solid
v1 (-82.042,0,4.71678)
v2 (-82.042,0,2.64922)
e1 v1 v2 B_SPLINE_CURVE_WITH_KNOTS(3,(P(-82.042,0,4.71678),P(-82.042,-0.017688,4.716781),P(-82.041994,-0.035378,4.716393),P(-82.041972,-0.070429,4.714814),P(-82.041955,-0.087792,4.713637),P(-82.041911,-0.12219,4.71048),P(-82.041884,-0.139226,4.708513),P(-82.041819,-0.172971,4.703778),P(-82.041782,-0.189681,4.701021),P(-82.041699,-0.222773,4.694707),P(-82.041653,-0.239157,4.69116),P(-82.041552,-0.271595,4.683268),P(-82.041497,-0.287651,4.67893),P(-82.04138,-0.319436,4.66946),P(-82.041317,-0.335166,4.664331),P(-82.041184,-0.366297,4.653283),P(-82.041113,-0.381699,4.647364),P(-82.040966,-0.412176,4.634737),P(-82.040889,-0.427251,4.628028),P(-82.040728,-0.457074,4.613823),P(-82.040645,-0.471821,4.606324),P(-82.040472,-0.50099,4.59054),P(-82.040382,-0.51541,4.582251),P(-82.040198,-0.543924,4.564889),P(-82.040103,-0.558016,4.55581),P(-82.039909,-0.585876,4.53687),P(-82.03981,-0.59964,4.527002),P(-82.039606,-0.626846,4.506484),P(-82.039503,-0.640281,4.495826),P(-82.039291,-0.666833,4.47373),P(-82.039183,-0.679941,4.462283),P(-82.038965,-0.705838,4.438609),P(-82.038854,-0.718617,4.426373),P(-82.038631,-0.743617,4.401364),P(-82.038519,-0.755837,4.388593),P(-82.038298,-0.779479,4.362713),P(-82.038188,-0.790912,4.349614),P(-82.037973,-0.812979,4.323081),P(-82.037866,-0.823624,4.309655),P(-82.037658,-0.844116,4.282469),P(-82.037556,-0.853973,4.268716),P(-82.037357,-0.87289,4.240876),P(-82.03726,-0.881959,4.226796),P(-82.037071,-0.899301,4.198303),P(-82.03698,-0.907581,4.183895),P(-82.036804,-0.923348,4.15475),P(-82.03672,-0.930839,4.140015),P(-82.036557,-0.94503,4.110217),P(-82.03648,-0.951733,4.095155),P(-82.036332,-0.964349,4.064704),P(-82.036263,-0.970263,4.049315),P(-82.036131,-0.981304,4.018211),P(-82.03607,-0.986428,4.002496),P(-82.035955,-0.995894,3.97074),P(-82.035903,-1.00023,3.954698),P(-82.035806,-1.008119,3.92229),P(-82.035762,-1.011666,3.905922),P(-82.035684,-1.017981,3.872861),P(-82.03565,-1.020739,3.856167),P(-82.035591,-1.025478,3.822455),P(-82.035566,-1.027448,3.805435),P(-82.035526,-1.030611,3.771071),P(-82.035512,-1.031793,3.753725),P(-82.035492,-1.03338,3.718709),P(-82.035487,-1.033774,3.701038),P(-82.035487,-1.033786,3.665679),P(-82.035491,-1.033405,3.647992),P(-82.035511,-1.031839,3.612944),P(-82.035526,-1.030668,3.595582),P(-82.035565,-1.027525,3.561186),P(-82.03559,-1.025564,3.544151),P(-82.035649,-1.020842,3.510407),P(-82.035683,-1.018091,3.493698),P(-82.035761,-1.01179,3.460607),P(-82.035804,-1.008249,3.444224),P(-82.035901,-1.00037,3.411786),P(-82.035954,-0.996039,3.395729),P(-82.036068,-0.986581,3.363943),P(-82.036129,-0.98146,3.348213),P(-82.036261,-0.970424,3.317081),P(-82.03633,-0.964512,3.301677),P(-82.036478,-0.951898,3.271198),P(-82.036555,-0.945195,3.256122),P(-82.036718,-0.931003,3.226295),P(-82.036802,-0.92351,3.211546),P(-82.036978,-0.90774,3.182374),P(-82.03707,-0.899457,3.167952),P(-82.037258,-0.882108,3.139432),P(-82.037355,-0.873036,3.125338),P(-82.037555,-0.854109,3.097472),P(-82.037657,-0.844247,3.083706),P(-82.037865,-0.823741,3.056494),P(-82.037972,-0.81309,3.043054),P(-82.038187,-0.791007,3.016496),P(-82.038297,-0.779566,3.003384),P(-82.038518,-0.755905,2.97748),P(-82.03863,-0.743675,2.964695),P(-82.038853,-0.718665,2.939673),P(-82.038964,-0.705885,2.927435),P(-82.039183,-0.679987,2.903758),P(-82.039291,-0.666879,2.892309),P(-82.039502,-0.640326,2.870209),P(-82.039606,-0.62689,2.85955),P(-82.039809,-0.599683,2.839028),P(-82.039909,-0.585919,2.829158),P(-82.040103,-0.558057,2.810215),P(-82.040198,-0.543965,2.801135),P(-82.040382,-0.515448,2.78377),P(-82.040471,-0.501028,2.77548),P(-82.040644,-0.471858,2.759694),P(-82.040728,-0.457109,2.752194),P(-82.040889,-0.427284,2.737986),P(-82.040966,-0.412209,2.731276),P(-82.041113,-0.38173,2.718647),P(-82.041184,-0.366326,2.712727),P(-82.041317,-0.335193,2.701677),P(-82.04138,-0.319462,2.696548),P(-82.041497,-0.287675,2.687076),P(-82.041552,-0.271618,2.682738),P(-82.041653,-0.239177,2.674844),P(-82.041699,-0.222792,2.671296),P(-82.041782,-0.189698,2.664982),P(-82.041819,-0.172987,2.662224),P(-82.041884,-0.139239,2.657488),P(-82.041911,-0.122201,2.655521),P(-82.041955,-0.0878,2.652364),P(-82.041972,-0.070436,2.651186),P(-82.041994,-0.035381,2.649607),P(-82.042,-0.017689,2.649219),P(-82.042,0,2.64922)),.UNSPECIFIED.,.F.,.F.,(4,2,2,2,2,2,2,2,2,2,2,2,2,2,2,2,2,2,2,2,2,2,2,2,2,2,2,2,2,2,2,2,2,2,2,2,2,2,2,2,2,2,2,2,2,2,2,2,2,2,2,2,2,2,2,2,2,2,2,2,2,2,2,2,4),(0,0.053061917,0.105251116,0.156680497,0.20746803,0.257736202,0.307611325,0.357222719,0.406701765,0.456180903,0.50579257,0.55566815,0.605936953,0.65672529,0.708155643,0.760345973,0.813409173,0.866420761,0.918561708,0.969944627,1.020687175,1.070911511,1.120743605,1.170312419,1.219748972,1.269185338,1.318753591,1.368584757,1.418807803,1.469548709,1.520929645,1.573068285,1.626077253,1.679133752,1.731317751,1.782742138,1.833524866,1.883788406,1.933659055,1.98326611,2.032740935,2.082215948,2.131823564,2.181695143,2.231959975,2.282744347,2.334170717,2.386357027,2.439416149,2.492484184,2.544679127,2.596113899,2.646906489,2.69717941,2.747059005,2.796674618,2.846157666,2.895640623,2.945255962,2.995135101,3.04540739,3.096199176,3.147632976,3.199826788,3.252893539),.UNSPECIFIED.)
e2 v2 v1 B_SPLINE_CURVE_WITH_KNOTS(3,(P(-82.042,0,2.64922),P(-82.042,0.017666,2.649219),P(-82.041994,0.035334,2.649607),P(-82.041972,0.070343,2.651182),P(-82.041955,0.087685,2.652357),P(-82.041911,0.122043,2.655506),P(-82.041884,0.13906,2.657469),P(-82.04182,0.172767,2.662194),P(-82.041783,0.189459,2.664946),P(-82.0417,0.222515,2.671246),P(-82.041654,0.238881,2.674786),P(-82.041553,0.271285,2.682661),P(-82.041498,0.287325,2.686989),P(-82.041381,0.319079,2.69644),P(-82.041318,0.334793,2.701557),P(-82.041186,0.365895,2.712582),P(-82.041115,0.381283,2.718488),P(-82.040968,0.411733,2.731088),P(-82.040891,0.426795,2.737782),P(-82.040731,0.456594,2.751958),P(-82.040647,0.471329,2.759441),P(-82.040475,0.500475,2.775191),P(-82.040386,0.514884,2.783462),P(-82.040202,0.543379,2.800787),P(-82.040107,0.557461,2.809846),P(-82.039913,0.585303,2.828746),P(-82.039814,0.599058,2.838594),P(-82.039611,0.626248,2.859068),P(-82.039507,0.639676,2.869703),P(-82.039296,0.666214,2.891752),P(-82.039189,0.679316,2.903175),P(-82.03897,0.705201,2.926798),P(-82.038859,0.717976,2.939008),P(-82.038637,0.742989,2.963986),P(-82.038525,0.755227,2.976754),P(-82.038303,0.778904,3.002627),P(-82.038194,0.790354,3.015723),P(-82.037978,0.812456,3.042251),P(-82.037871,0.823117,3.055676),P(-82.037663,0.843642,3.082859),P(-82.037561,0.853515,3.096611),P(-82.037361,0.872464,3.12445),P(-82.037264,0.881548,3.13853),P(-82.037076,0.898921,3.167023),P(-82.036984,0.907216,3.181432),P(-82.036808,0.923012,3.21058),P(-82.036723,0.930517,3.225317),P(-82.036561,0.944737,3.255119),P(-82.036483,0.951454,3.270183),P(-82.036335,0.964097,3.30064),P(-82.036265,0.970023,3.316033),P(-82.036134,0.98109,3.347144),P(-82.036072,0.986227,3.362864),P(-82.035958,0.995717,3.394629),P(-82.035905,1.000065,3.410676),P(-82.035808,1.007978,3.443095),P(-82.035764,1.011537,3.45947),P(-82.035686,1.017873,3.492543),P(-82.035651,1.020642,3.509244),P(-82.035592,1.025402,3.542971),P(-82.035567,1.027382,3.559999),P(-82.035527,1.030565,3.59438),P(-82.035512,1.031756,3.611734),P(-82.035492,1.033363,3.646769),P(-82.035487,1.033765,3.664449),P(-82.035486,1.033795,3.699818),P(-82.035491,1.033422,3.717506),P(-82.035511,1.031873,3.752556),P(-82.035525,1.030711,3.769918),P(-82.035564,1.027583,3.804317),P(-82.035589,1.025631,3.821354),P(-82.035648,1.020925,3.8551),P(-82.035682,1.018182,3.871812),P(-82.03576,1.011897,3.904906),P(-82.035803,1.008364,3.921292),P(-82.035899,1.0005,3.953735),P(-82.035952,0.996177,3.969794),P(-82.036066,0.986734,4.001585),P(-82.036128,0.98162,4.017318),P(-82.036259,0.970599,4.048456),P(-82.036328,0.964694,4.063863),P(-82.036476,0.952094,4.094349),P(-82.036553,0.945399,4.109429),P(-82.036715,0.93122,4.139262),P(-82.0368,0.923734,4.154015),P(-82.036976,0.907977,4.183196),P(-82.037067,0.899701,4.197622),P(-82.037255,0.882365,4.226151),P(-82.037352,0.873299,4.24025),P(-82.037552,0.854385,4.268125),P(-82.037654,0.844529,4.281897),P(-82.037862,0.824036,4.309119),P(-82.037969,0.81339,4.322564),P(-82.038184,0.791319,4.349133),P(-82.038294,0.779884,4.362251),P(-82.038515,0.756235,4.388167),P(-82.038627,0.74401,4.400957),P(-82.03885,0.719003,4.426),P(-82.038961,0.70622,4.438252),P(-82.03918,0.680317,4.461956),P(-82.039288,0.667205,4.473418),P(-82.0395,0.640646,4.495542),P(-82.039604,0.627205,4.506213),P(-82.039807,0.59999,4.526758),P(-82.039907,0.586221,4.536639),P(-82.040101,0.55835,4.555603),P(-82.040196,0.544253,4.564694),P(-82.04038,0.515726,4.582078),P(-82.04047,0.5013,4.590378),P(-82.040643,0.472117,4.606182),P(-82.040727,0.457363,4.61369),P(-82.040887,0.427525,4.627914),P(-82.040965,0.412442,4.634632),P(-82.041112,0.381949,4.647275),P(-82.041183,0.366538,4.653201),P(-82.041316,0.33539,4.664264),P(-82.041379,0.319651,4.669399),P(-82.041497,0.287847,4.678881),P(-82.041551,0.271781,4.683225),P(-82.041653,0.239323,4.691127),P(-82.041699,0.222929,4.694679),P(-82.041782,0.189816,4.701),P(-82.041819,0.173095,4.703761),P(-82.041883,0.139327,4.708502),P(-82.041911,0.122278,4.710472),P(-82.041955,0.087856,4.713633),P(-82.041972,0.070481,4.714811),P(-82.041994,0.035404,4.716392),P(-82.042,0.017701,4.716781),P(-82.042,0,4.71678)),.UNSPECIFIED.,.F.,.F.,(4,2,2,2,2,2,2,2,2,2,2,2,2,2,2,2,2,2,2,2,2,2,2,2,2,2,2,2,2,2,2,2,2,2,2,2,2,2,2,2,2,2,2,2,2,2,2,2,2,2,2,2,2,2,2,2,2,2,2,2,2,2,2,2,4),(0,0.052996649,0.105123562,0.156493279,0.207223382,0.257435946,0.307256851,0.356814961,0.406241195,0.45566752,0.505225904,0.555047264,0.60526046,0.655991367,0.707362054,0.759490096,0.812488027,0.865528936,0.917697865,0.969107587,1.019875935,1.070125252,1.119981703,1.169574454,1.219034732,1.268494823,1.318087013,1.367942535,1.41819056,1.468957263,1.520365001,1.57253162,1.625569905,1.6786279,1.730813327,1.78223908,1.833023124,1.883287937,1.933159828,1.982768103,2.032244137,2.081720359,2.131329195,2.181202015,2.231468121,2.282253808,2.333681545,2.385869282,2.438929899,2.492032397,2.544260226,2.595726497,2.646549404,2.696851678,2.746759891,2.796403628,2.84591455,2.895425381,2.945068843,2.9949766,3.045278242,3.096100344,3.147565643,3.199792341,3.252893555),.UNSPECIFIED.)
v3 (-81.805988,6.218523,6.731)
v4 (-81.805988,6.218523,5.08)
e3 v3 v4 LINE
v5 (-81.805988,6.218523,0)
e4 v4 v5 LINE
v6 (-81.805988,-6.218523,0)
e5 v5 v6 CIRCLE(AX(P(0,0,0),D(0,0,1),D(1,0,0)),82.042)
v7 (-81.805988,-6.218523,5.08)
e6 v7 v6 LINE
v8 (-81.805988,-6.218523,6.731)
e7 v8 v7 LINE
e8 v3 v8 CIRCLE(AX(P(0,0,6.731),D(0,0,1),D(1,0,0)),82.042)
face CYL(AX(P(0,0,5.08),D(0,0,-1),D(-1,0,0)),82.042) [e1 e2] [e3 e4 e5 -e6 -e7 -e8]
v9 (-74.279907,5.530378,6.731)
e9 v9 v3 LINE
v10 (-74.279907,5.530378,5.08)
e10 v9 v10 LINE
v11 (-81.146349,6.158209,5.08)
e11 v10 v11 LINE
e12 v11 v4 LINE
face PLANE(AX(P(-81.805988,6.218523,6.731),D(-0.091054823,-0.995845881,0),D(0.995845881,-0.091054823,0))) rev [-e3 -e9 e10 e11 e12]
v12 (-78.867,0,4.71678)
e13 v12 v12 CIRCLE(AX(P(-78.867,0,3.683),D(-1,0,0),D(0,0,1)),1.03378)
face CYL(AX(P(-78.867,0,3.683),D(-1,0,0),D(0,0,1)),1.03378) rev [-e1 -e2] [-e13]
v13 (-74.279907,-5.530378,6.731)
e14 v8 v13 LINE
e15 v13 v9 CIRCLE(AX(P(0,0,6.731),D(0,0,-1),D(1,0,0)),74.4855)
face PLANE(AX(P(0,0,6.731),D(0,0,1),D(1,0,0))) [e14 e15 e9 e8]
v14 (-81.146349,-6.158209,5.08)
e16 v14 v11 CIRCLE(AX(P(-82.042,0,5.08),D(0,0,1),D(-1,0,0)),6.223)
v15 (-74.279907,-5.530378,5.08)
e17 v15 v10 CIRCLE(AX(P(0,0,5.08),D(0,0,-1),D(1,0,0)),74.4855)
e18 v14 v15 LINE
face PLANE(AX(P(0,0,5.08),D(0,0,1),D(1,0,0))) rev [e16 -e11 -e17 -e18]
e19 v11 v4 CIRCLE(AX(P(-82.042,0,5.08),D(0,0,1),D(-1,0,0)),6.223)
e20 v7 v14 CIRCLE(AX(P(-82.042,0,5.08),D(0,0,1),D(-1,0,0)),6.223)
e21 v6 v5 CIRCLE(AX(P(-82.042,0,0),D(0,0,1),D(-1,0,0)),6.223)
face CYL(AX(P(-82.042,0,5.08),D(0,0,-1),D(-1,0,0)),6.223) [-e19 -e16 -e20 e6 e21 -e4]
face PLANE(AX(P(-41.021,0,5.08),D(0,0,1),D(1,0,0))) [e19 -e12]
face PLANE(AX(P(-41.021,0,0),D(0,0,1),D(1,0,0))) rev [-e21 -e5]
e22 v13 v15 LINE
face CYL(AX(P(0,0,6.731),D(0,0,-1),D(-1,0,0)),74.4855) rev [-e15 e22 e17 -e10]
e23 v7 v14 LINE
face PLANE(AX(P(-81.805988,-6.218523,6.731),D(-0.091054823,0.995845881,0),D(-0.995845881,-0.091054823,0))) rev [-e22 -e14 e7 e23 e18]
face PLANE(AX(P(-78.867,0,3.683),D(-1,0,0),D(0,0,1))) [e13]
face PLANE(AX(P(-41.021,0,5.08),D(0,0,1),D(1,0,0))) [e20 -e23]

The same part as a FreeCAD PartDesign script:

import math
import FreeCAD as App
import Part
import Sketcher

V = App.Vector
Q = App.Units.Quantity

doc = App.newDocument("Part")
body = doc.addObject("PartDesign::Body", "Body")

# Sketch on XY plane
sketch1 = body.newObject("Sketcher::SketchObject", "Sketch")
sketch1.AttachmentSupport = (doc.getObject("XY_Plane"), [""])
sketch1.MapMode = "FlatFace"
sketch1.addGeometry([
    Part.ArcOfCircle(Part.Circle(V(-82.042, 0, 0), V(0, 0, 1), 6.223), math.radians(-87.826496), math.radians(87.826496)),
    Part.ArcOfCircle(Part.Circle(V(0, 0, 0), V(0, 0, 1), 82.042), math.radians(175.652993), math.radians(184.347007)),
], False)
sketch1.addConstraint([
    Sketcher.Constraint("Coincident", 0, 1, 1, 2),
    Sketcher.Constraint("Coincident", 1, 1, 0, 2),
    Sketcher.Constraint("Coincident", 1, 3, -1, 1),
    Sketcher.Constraint("PointOnObject", 0, 3, -1),
    Sketcher.Constraint("Radius", 1, Q("3.23 in")),
    Sketcher.Constraint("Radius", 0, Q("0.245 in")),
    Sketcher.Constraint("DistanceX", 0, 3, -1, 1, Q("3.23 in")),
])
pad1 = body.newObject("PartDesign::Pad", "Pad")
pad1.Profile = sketch1
pad1.Length = Q("0.2 in")

# Sketch on XY plane
sketch2 = body.newObject("Sketcher::SketchObject", "Sketch001")
sketch2.AttachmentSupport = (doc.getObject("XY_Plane"), [""])
sketch2.MapMode = "FlatFace"
sketch2.AttachmentOffset = App.Placement(V(0, 0, 0.2 * 25.4), App.Rotation())
sketch2.addGeometry([
    Part.LineSegment(V(-74.279907, 5.530378, 0), V(-81.805988, 6.218523, 0)),
    Part.ArcOfCircle(Part.Circle(V(0, 0, 0), V(0, 0, 1), 82.042), math.radians(175.652993), math.radians(184.347007)),
    Part.LineSegment(V(-81.805988, -6.218523, 0), V(-74.279907, -5.530378, 0)),
    Part.ArcOfCircle(Part.Circle(V(0, 0, 0), V(0, 0, 1), 74.4855), math.radians(175.742001), math.radians(184.257999)),
], False)
sketch2.addConstraint([
    Sketcher.Constraint("Coincident", 0, 2, 1, 1),
    Sketcher.Constraint("Coincident", 1, 2, 2, 1),
    Sketcher.Constraint("Coincident", 2, 2, 3, 2),
    Sketcher.Constraint("Coincident", 3, 1, 0, 1),
    Sketcher.Constraint("Coincident", 1, 3, -1, 1),
    Sketcher.Constraint("Coincident", 3, 3, -1, 1),
    Sketcher.Constraint("Vertical", 0, 2, 1, 2),
    Sketcher.Constraint("Vertical", 2, 2, 3, 1),
    Sketcher.Constraint("Radius", 1, Q("3.23 in")),
    Sketcher.Constraint("Radius", 3, Q("2.9325 in")),
    Sketcher.Constraint("DistanceY", 2, 2, 0, 2, 11.748901),
    Sketcher.Constraint("DistanceX", 0, 2, -1, 1, 81.805988),
])
pad2 = body.newObject("PartDesign::Pad", "Pad001")
pad2.Profile = sketch2
pad2.Length = Q("0.065 in")

# Sketch on YZ plane
sketch3 = body.newObject("Sketcher::SketchObject", "Sketch002")
sketch3.AttachmentSupport = (doc.getObject("YZ_Plane"), [""])
sketch3.MapMode = "FlatFace"
sketch3.AttachmentOffset = App.Placement(V(0, 0, -3.23 * 25.4), App.Rotation())
sketch3.addGeometry(Part.Circle(V(0, 3.683, 0), V(0, 0, 1), 1.03378), False)
sketch3.addConstraint([
    Sketcher.Constraint("PointOnObject", 0, 3, -2),
    Sketcher.Constraint("Diameter", 0, Q("0.0814 in")),
    Sketcher.Constraint("DistanceY", -1, 1, 0, 3, Q("0.145 in")),
])
pocket1 = body.newObject("PartDesign::Pocket", "Pocket")
pocket1.Profile = sketch3
pocket1.Length = Q("0.125 in")
pocket1.Reversed = True

doc.recompute()
